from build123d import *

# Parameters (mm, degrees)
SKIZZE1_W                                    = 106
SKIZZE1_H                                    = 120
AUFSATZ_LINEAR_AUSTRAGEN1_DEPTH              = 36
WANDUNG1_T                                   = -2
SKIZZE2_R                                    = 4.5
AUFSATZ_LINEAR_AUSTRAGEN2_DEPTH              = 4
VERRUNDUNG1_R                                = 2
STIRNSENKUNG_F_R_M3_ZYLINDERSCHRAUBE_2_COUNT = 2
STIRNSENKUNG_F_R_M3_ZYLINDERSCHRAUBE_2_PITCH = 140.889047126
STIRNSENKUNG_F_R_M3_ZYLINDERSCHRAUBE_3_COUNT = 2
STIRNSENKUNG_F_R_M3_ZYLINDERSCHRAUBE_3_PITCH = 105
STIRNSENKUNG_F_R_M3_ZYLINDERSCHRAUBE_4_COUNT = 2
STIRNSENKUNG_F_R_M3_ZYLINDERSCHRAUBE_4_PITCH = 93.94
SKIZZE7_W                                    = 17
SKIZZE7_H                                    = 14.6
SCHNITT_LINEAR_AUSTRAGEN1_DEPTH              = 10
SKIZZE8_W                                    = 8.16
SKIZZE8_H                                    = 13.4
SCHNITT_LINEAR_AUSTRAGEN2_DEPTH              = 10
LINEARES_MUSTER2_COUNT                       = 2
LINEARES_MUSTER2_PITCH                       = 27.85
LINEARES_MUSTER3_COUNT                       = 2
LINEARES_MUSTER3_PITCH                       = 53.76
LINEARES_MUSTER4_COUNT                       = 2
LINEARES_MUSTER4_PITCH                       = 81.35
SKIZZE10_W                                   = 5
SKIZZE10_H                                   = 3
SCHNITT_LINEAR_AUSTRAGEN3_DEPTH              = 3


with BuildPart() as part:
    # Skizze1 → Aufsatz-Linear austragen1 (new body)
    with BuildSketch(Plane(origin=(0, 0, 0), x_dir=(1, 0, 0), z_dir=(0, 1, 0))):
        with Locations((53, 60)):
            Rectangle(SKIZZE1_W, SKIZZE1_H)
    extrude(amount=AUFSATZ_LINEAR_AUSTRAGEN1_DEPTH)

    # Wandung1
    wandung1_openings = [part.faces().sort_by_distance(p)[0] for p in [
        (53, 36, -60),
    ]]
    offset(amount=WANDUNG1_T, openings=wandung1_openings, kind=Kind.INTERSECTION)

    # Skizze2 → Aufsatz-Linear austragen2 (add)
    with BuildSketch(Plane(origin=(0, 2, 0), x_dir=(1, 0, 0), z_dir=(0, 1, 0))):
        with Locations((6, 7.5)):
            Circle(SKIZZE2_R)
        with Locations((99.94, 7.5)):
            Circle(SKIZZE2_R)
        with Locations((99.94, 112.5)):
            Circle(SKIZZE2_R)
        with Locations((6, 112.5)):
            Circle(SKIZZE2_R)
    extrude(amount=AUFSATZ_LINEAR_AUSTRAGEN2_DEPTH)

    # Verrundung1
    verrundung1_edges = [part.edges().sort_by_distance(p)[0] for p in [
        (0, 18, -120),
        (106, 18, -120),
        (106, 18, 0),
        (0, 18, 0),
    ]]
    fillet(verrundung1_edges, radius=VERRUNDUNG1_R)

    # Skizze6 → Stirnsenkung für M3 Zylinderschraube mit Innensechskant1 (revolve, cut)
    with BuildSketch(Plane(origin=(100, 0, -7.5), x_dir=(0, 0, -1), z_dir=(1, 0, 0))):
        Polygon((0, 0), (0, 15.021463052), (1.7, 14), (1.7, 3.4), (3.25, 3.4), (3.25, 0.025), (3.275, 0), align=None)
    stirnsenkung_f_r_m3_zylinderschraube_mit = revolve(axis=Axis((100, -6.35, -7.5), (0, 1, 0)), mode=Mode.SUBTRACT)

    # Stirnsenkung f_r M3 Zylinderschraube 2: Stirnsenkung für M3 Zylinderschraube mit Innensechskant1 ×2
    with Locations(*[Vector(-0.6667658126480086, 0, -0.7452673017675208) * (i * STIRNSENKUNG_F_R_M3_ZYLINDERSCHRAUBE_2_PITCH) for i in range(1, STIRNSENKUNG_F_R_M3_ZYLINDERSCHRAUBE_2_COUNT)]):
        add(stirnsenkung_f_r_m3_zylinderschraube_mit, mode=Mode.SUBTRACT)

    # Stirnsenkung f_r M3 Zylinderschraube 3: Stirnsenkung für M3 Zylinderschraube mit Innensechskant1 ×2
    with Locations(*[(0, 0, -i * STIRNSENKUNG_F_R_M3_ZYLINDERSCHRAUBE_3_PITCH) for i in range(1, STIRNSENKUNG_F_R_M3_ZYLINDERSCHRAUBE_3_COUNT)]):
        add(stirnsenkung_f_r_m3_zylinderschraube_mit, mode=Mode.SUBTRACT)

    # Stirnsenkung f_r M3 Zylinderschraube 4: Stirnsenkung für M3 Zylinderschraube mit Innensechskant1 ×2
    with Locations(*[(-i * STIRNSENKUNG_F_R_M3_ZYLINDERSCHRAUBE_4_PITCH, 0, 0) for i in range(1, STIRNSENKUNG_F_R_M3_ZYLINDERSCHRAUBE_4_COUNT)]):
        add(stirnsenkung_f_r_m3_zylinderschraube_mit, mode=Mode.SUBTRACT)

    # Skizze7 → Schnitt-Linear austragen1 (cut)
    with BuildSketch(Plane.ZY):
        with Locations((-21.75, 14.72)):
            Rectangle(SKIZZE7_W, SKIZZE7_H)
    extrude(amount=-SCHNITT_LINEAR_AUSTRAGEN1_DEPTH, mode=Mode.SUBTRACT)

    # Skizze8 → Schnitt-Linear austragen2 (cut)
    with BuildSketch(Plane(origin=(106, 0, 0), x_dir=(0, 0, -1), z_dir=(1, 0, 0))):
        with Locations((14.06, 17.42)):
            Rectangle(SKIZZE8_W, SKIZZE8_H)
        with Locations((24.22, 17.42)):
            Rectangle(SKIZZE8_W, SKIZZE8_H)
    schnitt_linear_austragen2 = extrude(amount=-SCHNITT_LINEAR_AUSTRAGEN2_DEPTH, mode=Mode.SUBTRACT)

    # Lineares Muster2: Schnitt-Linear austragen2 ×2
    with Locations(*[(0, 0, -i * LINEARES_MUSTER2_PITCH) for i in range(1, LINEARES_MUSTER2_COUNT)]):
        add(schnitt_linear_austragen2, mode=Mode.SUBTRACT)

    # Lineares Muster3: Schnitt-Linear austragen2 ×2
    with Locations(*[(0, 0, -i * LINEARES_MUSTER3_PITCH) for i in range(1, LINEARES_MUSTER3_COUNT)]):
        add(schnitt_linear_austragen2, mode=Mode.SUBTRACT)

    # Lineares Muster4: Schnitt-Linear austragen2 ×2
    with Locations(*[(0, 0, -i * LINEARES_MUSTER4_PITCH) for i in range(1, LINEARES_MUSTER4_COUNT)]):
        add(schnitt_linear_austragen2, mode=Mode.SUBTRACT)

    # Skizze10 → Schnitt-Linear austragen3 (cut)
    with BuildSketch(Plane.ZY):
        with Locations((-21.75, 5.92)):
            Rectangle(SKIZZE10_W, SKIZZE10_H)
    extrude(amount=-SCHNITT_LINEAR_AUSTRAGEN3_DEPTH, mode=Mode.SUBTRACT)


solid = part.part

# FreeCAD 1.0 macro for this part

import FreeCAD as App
import Part
import Sketcher
Q = App.Units.Quantity


def edges_at(feature, points):
    """Names of the edges that pass closest to the given points."""
    edges = feature.Shape.Edges
    near = lambda p: min(range(len(edges)), key=lambda i: edges[i].distToShape(Part.Vertex(*p))[0])
    return sorted({f"Edge{near(p) + 1}" for p in points})


def faces_at(feature, points):
    """Names of the faces that lie closest to the given points."""
    faces = feature.Shape.Faces
    near = lambda p: min(range(len(faces)), key=lambda i: faces[i].distToShape(Part.Vertex(*p))[0])
    return sorted({f"Face{near(p) + 1}" for p in points})


def add_polygon(sketch, points):
    """Adds a closed chain of lines whose ends are joined by coincident constraints."""
    first, n = sketch.GeometryCount, len(points)
    for a, b in zip(points, points[1:] + points[:1]):
        sketch.addGeometry(Part.LineSegment(App.Vector(*a, 0), App.Vector(*b, 0)), False)
    for i in range(n):
        sketch.addConstraint(Sketcher.Constraint("Coincident", first + i, 2, first + (i + 1) % n, 1))

doc = App.newDocument("Part")
body = doc.addObject("PartDesign::Body", "Body")

sketch1 = doc.addObject("Sketcher::SketchObject", "Sketch")
body.addObject(sketch1)
sketch1.AttachmentSupport = (doc.XZ_Plane, [""])
sketch1.MapMode = "FlatFace"
add_polygon(sketch1, [(0, -120), (0, 0), (106, 0), (106, -120)])
sketch1.addConstraint([
    Sketcher.Constraint("Vertical", 0),
    Sketcher.Constraint("Horizontal", 1),
    Sketcher.Constraint("Vertical", 2),
    Sketcher.Constraint("Horizontal", 3),
    Sketcher.Constraint("Coincident", 0, 2, -1, 1),
    Sketcher.Constraint("DistanceX", 1, 1, 1, 2, 106.0),
    Sketcher.Constraint("DistanceY", 0, 1, 0, 2, 120.0),
])
pad1 = doc.addObject("PartDesign::Pad", "Pad")
body.addObject(pad1)
pad1.Profile = sketch1
pad1.Length = 36
pad1.Reversed = True
doc.recompute()

thickness = doc.addObject("PartDesign::Thickness", "Thickness")
body.addObject(thickness)
thickness.Base = (pad1, faces_at(pad1, [(53, 36, -60)]))
thickness.Value = 2
thickness.Reversed = True
thickness.Join = "Intersection"

sketch2 = doc.addObject("Sketcher::SketchObject", "Sketch001")
body.addObject(sketch2)
sketch2.AttachmentSupport = (doc.XZ_Plane, [""])
sketch2.MapMode = "FlatFace"
sketch2.AttachmentOffset = App.Placement(App.Vector(0, 0, -2), App.Rotation())
sketch2.addGeometry([
    Part.Circle(App.Vector(6, -7.5, 0), App.Vector(0, 0, 1), 4.5),
    Part.Circle(App.Vector(99.9, -7.5, 0), App.Vector(0, 0, 1), 4.5),
    Part.Circle(App.Vector(99.9, -112.5, 0), App.Vector(0, 0, 1), 4.5),
    Part.Circle(App.Vector(6, -112.5, 0), App.Vector(0, 0, 1), 4.5),
], False)
sketch2.addConstraint([
    Sketcher.Constraint("Equal", 0, 1),
    Sketcher.Constraint("Equal", 1, 2),
    Sketcher.Constraint("Equal", 2, 3),
    Sketcher.Constraint("Horizontal", 0, 3, 1, 3),
    Sketcher.Constraint("Horizontal", 2, 3, 3, 3),
    Sketcher.Constraint("Vertical", 1, 3, 2, 3),
    Sketcher.Constraint("Vertical", 0, 3, 3, 3),
    Sketcher.Constraint("Diameter", 0, 9.0),
    Sketcher.Constraint("DistanceX", -1, 1, 0, 3, 6.0),
    Sketcher.Constraint("DistanceY", 2, 3, 1, 3, 105.0),
    Sketcher.Constraint("DistanceY", 0, 3, -1, 1, 7.5),
    Sketcher.Constraint("DistanceX", -1, 1, 1, 3, 99.94),
])
pad2 = doc.addObject("PartDesign::Pad", "Pad001")
body.addObject(pad2)
pad2.Profile = sketch2
pad2.Length = 4
pad2.Reversed = True
doc.recompute()

fillet = doc.addObject("PartDesign::Fillet", "Fillet")
body.addObject(fillet)
fillet.Base = (pad2, edges_at(pad2, [
    (0, 18, -120),
    (106, 18, -120),
    (106, 18, 0),
    (0, 18, 0),
]))
fillet.Radius = 2

sketch3 = doc.addObject("Sketcher::SketchObject", "Sketch002")
body.addObject(sketch3)
sketch3.AttachmentSupport = (doc.YZ_Plane, [""])
sketch3.MapMode = "FlatFace"
sketch3.AttachmentOffset = App.Placement(App.Vector(0, 0, 100), App.Rotation())
add_polygon(sketch3, [(15.021, -7.5), (0, -7.5), (0, -10.775), (0.025, -10.75), (3.4, -10.75), (3.4, -9.2), (14, -9.2)])
sketch3.addGeometry(Part.LineSegment(App.Vector(0, -7.5, 0), App.Vector(15.021, -7.5, 0)), True)
sketch3.addConstraint([
    Sketcher.Constraint("Horizontal", 0),
    Sketcher.Constraint("Vertical", 1),
    Sketcher.Constraint("Horizontal", 3),
    Sketcher.Constraint("Vertical", 4),
    Sketcher.Constraint("Horizontal", 5),
    Sketcher.Constraint("Horizontal", 7),
    Sketcher.Constraint("Coincident", 7, 1, 0, 2),
    Sketcher.Constraint("PointOnObject", 0, 2, -2),
    Sketcher.Constraint("Equal", 0, 7),
    Sketcher.Constraint("Angle", 2, Q("45 deg")),
    Sketcher.Constraint("Angle", 6, Q("59 deg")),
    Sketcher.Constraint("DistanceX", 5, 1, 5, 2, 10.6),
    Sketcher.Constraint("DistanceX", -1, 1, 5, 2, 14.0),
    Sketcher.Constraint("DistanceY", 4, 1, 4, 2, 1.55),
    Sketcher.Constraint("DistanceY", 0, 2, -1, 1, 7.5),
    Sketcher.Constraint("DistanceY", 4, 2, -1, 1, 9.2),
    Sketcher.Constraint("DistanceX", 3, 1, 3, 2, 3.375),
])
groove = doc.addObject("PartDesign::Groove", "Groove")
body.addObject(groove)
groove.Profile = sketch3
groove.ReferenceAxis = (sketch3, ["Axis0"])
groove.Angle = 360
doc.recompute()

datumline = doc.addObject("PartDesign::Line", "DatumLine")
body.addObject(datumline)
datumline.Placement = App.Placement(App.Vector(0, 0, 0), App.Rotation(App.Vector(0, 0, 1), App.Vector(-0.666765813, 0, -0.745267302)))
linearpattern = doc.addObject("PartDesign::LinearPattern", "LinearPattern")
body.addObject(linearpattern)
linearpattern.Originals = [groove]
linearpattern.Direction = (datumline, [""])
linearpattern.Mode = "offset"
linearpattern.Offset = 140.889047
linearpattern.Occurrences = 2
body.Tip = linearpattern
doc.recompute()

linearpattern2 = doc.addObject("PartDesign::LinearPattern", "LinearPattern001")
body.addObject(linearpattern2)
linearpattern2.Originals = [groove]
linearpattern2.Direction = (doc.Z_Axis, [""])
linearpattern2.Mode = "offset"
linearpattern2.Offset = 105
linearpattern2.Occurrences = 2
linearpattern2.Reversed = True
body.Tip = linearpattern2
doc.recompute()

linearpattern3 = doc.addObject("PartDesign::LinearPattern", "LinearPattern002")
body.addObject(linearpattern3)
linearpattern3.Originals = [groove]
linearpattern3.Direction = (doc.X_Axis, [""])
linearpattern3.Mode = "offset"
linearpattern3.Offset = 93.94
linearpattern3.Occurrences = 2
linearpattern3.Reversed = True
body.Tip = linearpattern3

sketch4 = doc.addObject("Sketcher::SketchObject", "Sketch003")
body.addObject(sketch4)
sketch4.AttachmentSupport = (doc.YZ_Plane, [""])
sketch4.MapMode = "FlatFace"
add_polygon(sketch4, [(22, -30), (7, -30), (7, -13), (22, -13)])
sketch4.addConstraint([
    Sketcher.Constraint("Horizontal", 0),
    Sketcher.Constraint("Vertical", 1),
    Sketcher.Constraint("Horizontal", 2),
    Sketcher.Constraint("Vertical", 3),
    Sketcher.Constraint("DistanceY", 1, 1, 1, 2, 17.0),
    Sketcher.Constraint("DistanceX", 0, 2, 0, 1, 14.6),
    Sketcher.Constraint("DistanceX", -1, 1, 0, 2, 7.42),
    Sketcher.Constraint("DistanceY", 0, 2, -1, 1, 30.25),
])
pocket1 = doc.addObject("PartDesign::Pocket", "Pocket")
body.addObject(pocket1)
pocket1.Profile = sketch4
pocket1.Length = 10
pocket1.Reversed = True

sketch5 = doc.addObject("Sketcher::SketchObject", "Sketch004")
body.addObject(sketch5)
sketch5.AttachmentSupport = (doc.YZ_Plane, [""])
sketch5.MapMode = "FlatFace"
sketch5.AttachmentOffset = App.Placement(App.Vector(0, 0, 106), App.Rotation())
add_polygon(sketch5, [(24, -10), (11, -10), (11, -18), (24, -18)])
add_polygon(sketch5, [(24, -20), (11, -20), (11, -28), (24, -28)])
sketch5.addConstraint([
    Sketcher.Constraint("Horizontal", 0),
    Sketcher.Constraint("Vertical", 1),
    Sketcher.Constraint("Horizontal", 2),
    Sketcher.Constraint("Vertical", 3),
    Sketcher.Constraint("Horizontal", 4),
    Sketcher.Constraint("Vertical", 5),
    Sketcher.Constraint("Horizontal", 6),
    Sketcher.Constraint("Vertical", 7),
    Sketcher.Constraint("Vertical", 1, 2, 4, 2),
    Sketcher.Constraint("Vertical", 3, 2, 6, 2),
    Sketcher.Constraint("Equal", 3, 5),
    Sketcher.Constraint("DistanceX", 0, 2, 0, 1, 13.4),
    Sketcher.Constraint("DistanceY", 4, 2, 1, 2, 2.0),
    Sketcher.Constraint("DistanceY", 1, 2, 1, 1, 8.16),
    Sketcher.Constraint("DistanceY", 5, 2, -1, 1, 28.3),
    Sketcher.Constraint("DistanceX", -1, 1, 0, 2, 10.72),
])
pocket2 = doc.addObject("PartDesign::Pocket", "Pocket001")
body.addObject(pocket2)
pocket2.Profile = sketch5
pocket2.Length = 10
doc.recompute()

linearpattern4 = doc.addObject("PartDesign::LinearPattern", "LinearPattern003")
body.addObject(linearpattern4)
linearpattern4.Originals = [pocket2]
linearpattern4.Direction = (doc.Z_Axis, [""])
linearpattern4.Mode = "offset"
linearpattern4.Offset = 27.85
linearpattern4.Occurrences = 2
linearpattern4.Reversed = True
body.Tip = linearpattern4
doc.recompute()

linearpattern5 = doc.addObject("PartDesign::LinearPattern", "LinearPattern004")
body.addObject(linearpattern5)
linearpattern5.Originals = [pocket2]
linearpattern5.Direction = (doc.Z_Axis, [""])
linearpattern5.Mode = "offset"
linearpattern5.Offset = 53.76
linearpattern5.Occurrences = 2
linearpattern5.Reversed = True
body.Tip = linearpattern5
doc.recompute()

linearpattern6 = doc.addObject("PartDesign::LinearPattern", "LinearPattern005")
body.addObject(linearpattern6)
linearpattern6.Originals = [pocket2]
linearpattern6.Direction = (doc.Z_Axis, [""])
linearpattern6.Mode = "offset"
linearpattern6.Offset = 81.35
linearpattern6.Occurrences = 2
linearpattern6.Reversed = True
body.Tip = linearpattern6

sketch6 = doc.addObject("Sketcher::SketchObject", "Sketch005")
body.addObject(sketch6)
sketch6.AttachmentSupport = (doc.YZ_Plane, [""])
sketch6.MapMode = "FlatFace"
add_polygon(sketch6, [(7.4, -24.2), (4.4, -24.2), (4.4, -19.2), (7.4, -19.2)])
sketch6.addConstraint([
    Sketcher.Constraint("Horizontal", 0),
    Sketcher.Constraint("Vertical", 1),
    Sketcher.Constraint("Horizontal", 2),
    Sketcher.Constraint("Vertical", 3),
    Sketcher.Constraint("DistanceX", 0, 2, 0, 1, 3.0),
    Sketcher.Constraint("DistanceY", 1, 1, 1, 2, 5.0),
    Sketcher.Constraint("DistanceX", -1, 1, 0, 2, 4.42),
    Sketcher.Constraint("DistanceY", 0, 2, -1, 1, 24.25),
])
pocket3 = doc.addObject("PartDesign::Pocket", "Pocket002")
body.addObject(pocket3)
pocket3.Profile = sketch6
pocket3.Length = 3
pocket3.Reversed = True

doc.recompute()
